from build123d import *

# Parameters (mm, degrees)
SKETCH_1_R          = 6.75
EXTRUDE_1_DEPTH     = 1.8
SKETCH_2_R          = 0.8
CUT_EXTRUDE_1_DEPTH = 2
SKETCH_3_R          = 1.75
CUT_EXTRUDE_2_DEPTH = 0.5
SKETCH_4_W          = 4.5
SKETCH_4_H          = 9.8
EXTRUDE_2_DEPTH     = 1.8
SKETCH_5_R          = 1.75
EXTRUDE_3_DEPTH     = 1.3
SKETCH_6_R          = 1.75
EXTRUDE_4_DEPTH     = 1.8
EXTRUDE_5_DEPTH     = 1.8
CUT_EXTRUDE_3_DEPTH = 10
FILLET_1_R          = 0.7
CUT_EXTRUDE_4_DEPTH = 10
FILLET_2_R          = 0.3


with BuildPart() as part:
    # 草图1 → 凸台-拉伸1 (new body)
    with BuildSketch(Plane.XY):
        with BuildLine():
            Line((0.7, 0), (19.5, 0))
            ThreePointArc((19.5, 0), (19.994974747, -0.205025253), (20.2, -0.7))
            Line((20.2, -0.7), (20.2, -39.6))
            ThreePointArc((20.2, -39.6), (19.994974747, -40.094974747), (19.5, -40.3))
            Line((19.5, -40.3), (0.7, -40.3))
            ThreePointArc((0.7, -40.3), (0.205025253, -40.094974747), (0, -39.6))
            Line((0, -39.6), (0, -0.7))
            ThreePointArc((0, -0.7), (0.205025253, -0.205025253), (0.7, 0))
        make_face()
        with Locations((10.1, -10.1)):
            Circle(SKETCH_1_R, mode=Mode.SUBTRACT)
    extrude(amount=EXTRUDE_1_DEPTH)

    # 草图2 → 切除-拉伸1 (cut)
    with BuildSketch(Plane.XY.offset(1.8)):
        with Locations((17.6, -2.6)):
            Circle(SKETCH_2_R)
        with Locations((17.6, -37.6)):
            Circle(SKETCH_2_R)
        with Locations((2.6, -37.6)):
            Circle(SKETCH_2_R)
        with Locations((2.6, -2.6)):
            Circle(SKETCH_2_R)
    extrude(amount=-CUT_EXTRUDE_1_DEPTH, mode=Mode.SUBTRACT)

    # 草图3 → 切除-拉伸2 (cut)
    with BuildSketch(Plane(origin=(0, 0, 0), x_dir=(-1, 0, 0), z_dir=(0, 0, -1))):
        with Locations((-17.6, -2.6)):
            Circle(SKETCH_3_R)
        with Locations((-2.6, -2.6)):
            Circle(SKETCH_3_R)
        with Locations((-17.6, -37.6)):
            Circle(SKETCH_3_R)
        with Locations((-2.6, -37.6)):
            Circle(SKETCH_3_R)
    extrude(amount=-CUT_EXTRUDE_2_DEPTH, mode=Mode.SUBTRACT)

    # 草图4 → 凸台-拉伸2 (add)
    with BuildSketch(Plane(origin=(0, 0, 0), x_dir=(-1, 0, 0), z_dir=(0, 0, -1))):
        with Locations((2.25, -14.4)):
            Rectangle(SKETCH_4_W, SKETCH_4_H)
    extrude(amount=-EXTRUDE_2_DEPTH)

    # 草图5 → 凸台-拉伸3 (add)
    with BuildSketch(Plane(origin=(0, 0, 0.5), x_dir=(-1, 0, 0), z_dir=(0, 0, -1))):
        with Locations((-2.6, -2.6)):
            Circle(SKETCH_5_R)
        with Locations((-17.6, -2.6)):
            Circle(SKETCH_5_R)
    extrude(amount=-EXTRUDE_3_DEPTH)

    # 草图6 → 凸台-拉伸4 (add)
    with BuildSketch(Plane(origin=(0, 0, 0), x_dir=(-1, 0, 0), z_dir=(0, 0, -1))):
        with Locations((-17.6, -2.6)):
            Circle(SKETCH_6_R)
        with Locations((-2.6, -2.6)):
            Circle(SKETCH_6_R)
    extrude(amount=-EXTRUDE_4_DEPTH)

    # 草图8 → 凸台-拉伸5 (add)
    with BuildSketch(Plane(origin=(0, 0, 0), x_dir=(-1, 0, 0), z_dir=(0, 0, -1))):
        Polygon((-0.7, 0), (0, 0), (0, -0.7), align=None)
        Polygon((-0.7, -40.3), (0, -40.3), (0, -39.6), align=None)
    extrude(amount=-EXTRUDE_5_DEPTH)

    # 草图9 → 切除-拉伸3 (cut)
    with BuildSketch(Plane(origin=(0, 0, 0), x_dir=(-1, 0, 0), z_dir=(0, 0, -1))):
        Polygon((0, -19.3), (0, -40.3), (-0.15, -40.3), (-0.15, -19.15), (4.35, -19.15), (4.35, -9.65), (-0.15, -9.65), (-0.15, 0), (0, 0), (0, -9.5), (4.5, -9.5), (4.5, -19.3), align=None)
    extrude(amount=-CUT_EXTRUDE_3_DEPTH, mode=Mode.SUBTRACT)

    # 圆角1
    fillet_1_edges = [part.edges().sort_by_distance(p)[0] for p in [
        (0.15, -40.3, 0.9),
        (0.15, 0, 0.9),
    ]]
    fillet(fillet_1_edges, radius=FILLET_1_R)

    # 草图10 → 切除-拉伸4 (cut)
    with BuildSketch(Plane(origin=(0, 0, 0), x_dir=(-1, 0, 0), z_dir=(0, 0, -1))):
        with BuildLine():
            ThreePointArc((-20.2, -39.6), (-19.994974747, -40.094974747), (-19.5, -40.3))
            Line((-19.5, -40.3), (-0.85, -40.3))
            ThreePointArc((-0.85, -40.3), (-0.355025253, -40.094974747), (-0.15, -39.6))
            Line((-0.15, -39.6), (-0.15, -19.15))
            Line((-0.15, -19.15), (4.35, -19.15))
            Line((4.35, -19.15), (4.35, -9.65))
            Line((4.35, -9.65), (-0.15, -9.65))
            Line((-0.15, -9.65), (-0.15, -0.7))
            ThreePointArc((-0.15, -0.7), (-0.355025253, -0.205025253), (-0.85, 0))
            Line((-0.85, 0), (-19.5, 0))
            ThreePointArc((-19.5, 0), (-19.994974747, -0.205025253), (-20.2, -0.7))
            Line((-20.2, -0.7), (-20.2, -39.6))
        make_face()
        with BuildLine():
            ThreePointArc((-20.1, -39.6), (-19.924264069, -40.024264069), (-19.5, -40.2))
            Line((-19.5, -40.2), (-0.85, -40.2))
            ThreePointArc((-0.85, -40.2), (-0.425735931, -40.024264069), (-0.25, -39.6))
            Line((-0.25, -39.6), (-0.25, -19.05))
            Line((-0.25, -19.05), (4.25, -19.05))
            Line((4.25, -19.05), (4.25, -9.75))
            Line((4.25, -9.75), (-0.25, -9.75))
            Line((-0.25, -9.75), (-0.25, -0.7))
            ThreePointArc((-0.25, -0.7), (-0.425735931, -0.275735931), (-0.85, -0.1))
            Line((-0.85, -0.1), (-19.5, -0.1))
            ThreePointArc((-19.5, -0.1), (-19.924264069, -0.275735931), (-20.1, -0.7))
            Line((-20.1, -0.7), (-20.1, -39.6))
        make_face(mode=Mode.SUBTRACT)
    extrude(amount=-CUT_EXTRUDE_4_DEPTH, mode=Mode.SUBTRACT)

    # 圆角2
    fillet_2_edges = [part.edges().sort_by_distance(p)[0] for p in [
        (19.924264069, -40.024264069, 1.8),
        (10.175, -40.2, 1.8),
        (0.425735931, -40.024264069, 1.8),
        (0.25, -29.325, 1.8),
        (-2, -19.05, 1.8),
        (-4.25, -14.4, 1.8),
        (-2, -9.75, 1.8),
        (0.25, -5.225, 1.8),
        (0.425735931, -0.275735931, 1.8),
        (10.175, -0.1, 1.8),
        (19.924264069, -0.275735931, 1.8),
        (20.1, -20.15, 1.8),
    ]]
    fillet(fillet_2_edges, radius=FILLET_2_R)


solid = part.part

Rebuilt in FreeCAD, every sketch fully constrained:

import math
import FreeCAD as App
import Part
import Sketcher
from FreeCAD import Vector


def edges_at(feature, points):
    """Names of the edges that pass closest to the given points."""
    edges = feature.Shape.Edges
    near = lambda p: min(range(len(edges)), key=lambda i: edges[i].distToShape(Part.Vertex(*p))[0])
    return sorted({f"Edge{near(p) + 1}" for p in points})


def add_polygon(sketch, points):
    """Adds a closed chain of lines whose ends are joined by coincident constraints."""
    first, n = sketch.GeometryCount, len(points)
    for a, b in zip(points, points[1:] + points[:1]):
        sketch.addGeometry(Part.LineSegment(App.Vector(*a, 0), App.Vector(*b, 0)), False)
    for i in range(n):
        sketch.addConstraint(Sketcher.Constraint("Coincident", first + i, 2, first + (i + 1) % n, 1))

doc = App.newDocument("Part")
body = doc.addObject("PartDesign::Body", "Body")

sketch1 = body.newObject("Sketcher::SketchObject", "Sketch")
sketch1.AttachmentSupport = (doc.getObject("XY_Plane"), [""])
sketch1.MapMode = "FlatFace"
sketch1.addGeometry([
    Part.LineSegment(Vector(19.5, 0, 0), Vector(0.7, 0, 0)),
    Part.ArcOfCircle(Part.Circle(Vector(0.7, -0.7, 0), Vector(0, 0, 1), 0.7), math.radians(90), math.radians(180)),
    Part.LineSegment(Vector(0, -0.7, 0), Vector(0, -39.6, 0)),
    Part.ArcOfCircle(Part.Circle(Vector(0.7, -39.6, 0), Vector(0, 0, 1), 0.7), math.radians(180), math.radians(270)),
    Part.LineSegment(Vector(0.7, -40.3, 0), Vector(19.5, -40.3, 0)),
    Part.ArcOfCircle(Part.Circle(Vector(19.5, -39.6, 0), Vector(0, 0, 1), 0.7), math.radians(-90), math.radians(0)),
    Part.LineSegment(Vector(20.2, -39.6, 0), Vector(20.2, -0.7, 0)),
    Part.ArcOfCircle(Part.Circle(Vector(19.5, -0.7, 0), Vector(0, 0, 1), 0.7), math.radians(0), math.radians(90)),
    Part.Circle(Vector(10.1, -10.1, 0), Vector(0, 0, 1), 6.8),
], False)
sketch1.addConstraint([
    Sketcher.Constraint("Tangent", 0, 2, 1, 1),
    Sketcher.Constraint("Tangent", 1, 2, 2, 1),
    Sketcher.Constraint("Tangent", 2, 2, 3, 1),
    Sketcher.Constraint("Tangent", 3, 2, 4, 1),
    Sketcher.Constraint("Tangent", 4, 2, 5, 1),
    Sketcher.Constraint("Tangent", 5, 2, 6, 1),
    Sketcher.Constraint("Tangent", 6, 2, 7, 1),
    Sketcher.Constraint("Tangent", 7, 2, 0, 1),
    Sketcher.Constraint("Horizontal", 0),
    Sketcher.Constraint("Vertical", 2),
    Sketcher.Constraint("Horizontal", 4),
    Sketcher.Constraint("Vertical", 6),
    Sketcher.Constraint("Equal", 1, 3),
    Sketcher.Constraint("Equal", 3, 5),
    Sketcher.Constraint("Equal", 5, 7),
    Sketcher.Constraint("PointOnObject", 0, 2, -1),
    Sketcher.Constraint("PointOnObject", 1, 2, -2),
    Sketcher.Constraint("Diameter", 8, 13.5),
    Sketcher.Constraint("Radius", 1, 0.7),
    Sketcher.Constraint("DistanceX", 0, 2, 0, 1, 18.8),
    Sketcher.Constraint("DistanceY", 2, 2, 2, 1, 38.9),
    Sketcher.Constraint("DistanceX", -1, 1, 8, 3, 10.1),
    Sketcher.Constraint("DistanceY", 8, 3, -1, 1, 10.1),
])
pad1 = body.newObject("PartDesign::Pad", "Pad")
pad1.Profile = sketch1
pad1.Length = 1.8

sketch2 = body.newObject("Sketcher::SketchObject", "Sketch001")
sketch2.AttachmentSupport = (doc.getObject("XY_Plane"), [""])
sketch2.MapMode = "FlatFace"
sketch2.AttachmentOffset = App.Placement(Vector(0, 0, 1.8), App.Rotation())
sketch2.addGeometry([
    Part.Circle(Vector(17.6, -2.6, 0), Vector(0, 0, 1), 0.8),
    Part.Circle(Vector(17.6, -37.6, 0), Vector(0, 0, 1), 0.8),
    Part.Circle(Vector(2.6, -37.6, 0), Vector(0, 0, 1), 0.8),
    Part.Circle(Vector(2.6, -2.6, 0), Vector(0, 0, 1), 0.8),
], False)
sketch2.addConstraint([
    Sketcher.Constraint("Equal", 0, 1),
    Sketcher.Constraint("Equal", 1, 2),
    Sketcher.Constraint("Equal", 2, 3),
    Sketcher.Constraint("Horizontal", 1, 3, 2, 3),
    Sketcher.Constraint("Horizontal", 0, 3, 3, 3),
    Sketcher.Constraint("Vertical", 0, 3, 1, 3),
    Sketcher.Constraint("Vertical", 2, 3, 3, 3),
    Sketcher.Constraint("Diameter", 0, 1.6),
    Sketcher.Constraint("DistanceY", 1, 3, 0, 3, 35.0),
    Sketcher.Constraint("DistanceX", 2, 3, 1, 3, 15.0),
    Sketcher.Constraint("DistanceX", -1, 1, 0, 3, 17.6),
    Sketcher.Constraint("DistanceY", 0, 3, -1, 1, 2.6),
])
pocket1 = body.newObject("PartDesign::Pocket", "Pocket")
pocket1.Profile = sketch2
pocket1.Length = 2

sketch3 = body.newObject("Sketcher::SketchObject", "Sketch002")
sketch3.AttachmentSupport = (doc.getObject("XY_Plane"), [""])
sketch3.MapMode = "FlatFace"
sketch3.addGeometry([
    Part.Circle(Vector(17.6, -2.6, 0), Vector(0, 0, 1), 1.8),
    Part.Circle(Vector(2.6, -2.6, 0), Vector(0, 0, 1), 1.8),
    Part.Circle(Vector(17.6, -37.6, 0), Vector(0, 0, 1), 1.8),
    Part.Circle(Vector(2.6, -37.6, 0), Vector(0, 0, 1), 1.8),
], False)
sketch3.addConstraint([
    Sketcher.Constraint("Equal", 0, 1),
    Sketcher.Constraint("Equal", 1, 2),
    Sketcher.Constraint("Equal", 2, 3),
    Sketcher.Constraint("Horizontal", 0, 3, 1, 3),
    Sketcher.Constraint("Horizontal", 2, 3, 3, 3),
    Sketcher.Constraint("Vertical", 0, 3, 2, 3),
    Sketcher.Constraint("Vertical", 1, 3, 3, 3),
    Sketcher.Constraint("Diameter", 0, 3.5),
    Sketcher.Constraint("DistanceX", 1, 3, 0, 3, 15.0),
    Sketcher.Constraint("DistanceY", 2, 3, 0, 3, 35.0),
    Sketcher.Constraint("DistanceX", -1, 1, 0, 3, 17.6),
    Sketcher.Constraint("DistanceY", 0, 3, -1, 1, 2.6),
])
pocket2 = body.newObject("PartDesign::Pocket", "Pocket001")
pocket2.Profile = sketch3
pocket2.Length = 0.5
pocket2.Reversed = True

sketch4 = body.newObject("Sketcher::SketchObject", "Sketch003")
sketch4.AttachmentSupport = (doc.getObject("XY_Plane"), [""])
sketch4.MapMode = "FlatFace"
add_polygon(sketch4, [(0, -9.5), (0, -19.3), (-4.5, -19.3), (-4.5, -9.5)])
sketch4.addConstraint([
    Sketcher.Constraint("Vertical", 0),
    Sketcher.Constraint("Horizontal", 1),
    Sketcher.Constraint("Vertical", 2),
    Sketcher.Constraint("Horizontal", 3),
    Sketcher.Constraint("PointOnObject", 0, 2, -2),
    Sketcher.Constraint("DistanceX", 1, 2, 1, 1, 4.5),
    Sketcher.Constraint("DistanceY", 0, 2, 0, 1, 9.8),
    Sketcher.Constraint("DistanceY", 0, 2, -1, 1, 19.3),
])
pad2 = body.newObject("PartDesign::Pad", "Pad001")
pad2.Profile = sketch4
pad2.Length = 1.8

sketch5 = body.newObject("Sketcher::SketchObject", "Sketch004")
sketch5.AttachmentSupport = (doc.getObject("XY_Plane"), [""])
sketch5.MapMode = "FlatFace"
sketch5.AttachmentOffset = App.Placement(Vector(0, 0, 0.5), App.Rotation())
sketch5.addGeometry([
    Part.Circle(Vector(2.6, -2.6, 0), Vector(0, 0, 1), 1.8),
    Part.Circle(Vector(17.6, -2.6, 0), Vector(0, 0, 1), 1.8),
], False)
sketch5.addConstraint([
    Sketcher.Constraint("Equal", 0, 1),
    Sketcher.Constraint("Horizontal", 0, 3, 1, 3),
    Sketcher.Constraint("Diameter", 0, 3.5),
    Sketcher.Constraint("DistanceX", 0, 3, 1, 3, 15.0),
    Sketcher.Constraint("DistanceX", -1, 1, 0, 3, 2.6),
    Sketcher.Constraint("DistanceY", 0, 3, -1, 1, 2.6),
])
pad3 = body.newObject("PartDesign::Pad", "Pad002")
pad3.Profile = sketch5
pad3.Length = 1.3

sketch6 = body.newObject("Sketcher::SketchObject", "Sketch005")
sketch6.AttachmentSupport = (doc.getObject("XY_Plane"), [""])
sketch6.MapMode = "FlatFace"
sketch6.addGeometry([
    Part.Circle(Vector(17.6, -2.6, 0), Vector(0, 0, 1), 1.8),
    Part.Circle(Vector(2.6, -2.6, 0), Vector(0, 0, 1), 1.8),
], False)
sketch6.addConstraint([
    Sketcher.Constraint("Equal", 0, 1),
    Sketcher.Constraint("Horizontal", 0, 3, 1, 3),
    Sketcher.Constraint("Diameter", 0, 3.5),
    Sketcher.Constraint("DistanceX", 1, 3, 0, 3, 15.0),
    Sketcher.Constraint("DistanceX", -1, 1, 0, 3, 17.6),
    Sketcher.Constraint("DistanceY", 0, 3, -1, 1, 2.6),
])
pad4 = body.newObject("PartDesign::Pad", "Pad003")
pad4.Profile = sketch6
pad4.Length = 1.8

sketch7 = body.newObject("Sketcher::SketchObject", "Sketch006")
sketch7.AttachmentSupport = (doc.getObject("XY_Plane"), [""])
sketch7.MapMode = "FlatFace"
add_polygon(sketch7, [(0, 0), (0.7, 0), (0, -0.7)])
add_polygon(sketch7, [(0.7, -40.3), (0, -40.3), (0, -39.6)])
sketch7.addConstraint([
    Sketcher.Constraint("Horizontal", 0),
    Sketcher.Constraint("Vertical", 2),
    Sketcher.Constraint("Horizontal", 3),
    Sketcher.Constraint("Vertical", 4),
    Sketcher.Constraint("Coincident", 2, 2, -1, 1),
    Sketcher.Constraint("PointOnObject", 3, 2, -2),
    Sketcher.Constraint("Perpendicular", 1, 5),
    Sketcher.Constraint("Vertical", 0, 2, 5, 2),
    Sketcher.Constraint("Equal", 3, 2),
    Sketcher.Constraint("DistanceX", 0, 1, 0, 2, 0.7),
    Sketcher.Constraint("DistanceY", 3, 2, -1, 1, 40.3),
])
pad5 = body.newObject("PartDesign::Pad", "Pad004")
pad5.Profile = sketch7
pad5.Length = 1.8

sketch8 = body.newObject("Sketcher::SketchObject", "Sketch007")
sketch8.AttachmentSupport = (doc.getObject("XY_Plane"), [""])
sketch8.MapMode = "FlatFace"
add_polygon(sketch8, [(0, -40.3), (0, -19.3), (-4.5, -19.3), (-4.5, -9.5), (0, -9.5), (0, 0), (0.15, 0), (0.15, -9.65), (-4.35, -9.65), (-4.35, -19.15), (0.15, -19.15), (0.15, -40.3)])
sketch8.addConstraint([
    Sketcher.Constraint("Vertical", 0),
    Sketcher.Constraint("Horizontal", 1),
    Sketcher.Constraint("Vertical", 2),
    Sketcher.Constraint("Horizontal", 3),
    Sketcher.Constraint("Vertical", 4),
    Sketcher.Constraint("Horizontal", 5),
    Sketcher.Constraint("Vertical", 6),
    Sketcher.Constraint("Horizontal", 7),
    Sketcher.Constraint("Vertical", 8),
    Sketcher.Constraint("Horizontal", 9),
    Sketcher.Constraint("Vertical", 10),
    Sketcher.Constraint("Horizontal", 11),
    Sketcher.Constraint("Coincident", 4, 2, -1, 1),
    Sketcher.Constraint("PointOnObject", 0, 2, -2),
    Sketcher.Constraint("Vertical", 6, 2, 9, 2),
    Sketcher.Constraint("Equal", 3, 7),
    Sketcher.Constraint("Equal", 4, 8),
    Sketcher.Constraint("DistanceY", 0, 1, 0, 2, 21.0),
    Sketcher.Constraint("DistanceX", 1, 2, 1, 1, 4.5),
    Sketcher.Constraint("DistanceY", 2, 1, 2, 2, 9.8),
    Sketcher.Constraint("DistanceY", 4, 1, 4, 2, 9.5),
    Sketcher.Constraint("DistanceX", 5, 1, 5, 2, 0.15),
    Sketcher.Constraint("DistanceY", 6, 2, 6, 1, 9.65),
])
pocket3 = body.newObject("PartDesign::Pocket", "Pocket002")
pocket3.Profile = sketch8
pocket3.Length = 10
pocket3.Reversed = True
doc.recompute()

fillet = body.newObject("PartDesign::Fillet", "Fillet")
fillet.Base = (pocket3, edges_at(pocket3, [(0.15, -40.3, 0.9), (0.15, 0, 0.9)]))
fillet.Radius = 0.7

sketch9 = body.newObject("Sketcher::SketchObject", "Sketch008")
sketch9.AttachmentSupport = (doc.getObject("XY_Plane"), [""])
sketch9.MapMode = "FlatFace"
sketch9.addGeometry([
    Part.ArcOfCircle(Part.Circle(Vector(19.5, -39.6, 0), Vector(0, 0, 1), 0.7), math.radians(-90), math.radians(0)),
    Part.LineSegment(Vector(19.5, -40.3, 0), Vector(0.8, -40.3, 0)),
    Part.ArcOfCircle(Part.Circle(Vector(0.8, -39.6, 0), Vector(0, 0, 1), 0.7), math.radians(180), math.radians(270)),
    Part.LineSegment(Vector(0.1, -39.6, 0), Vector(0.1, -19.1, 0)),
    Part.LineSegment(Vector(0.1, -19.1, 0), Vector(-4.3, -19.1, 0)),
    Part.LineSegment(Vector(-4.3, -19.1, 0), Vector(-4.3, -9.7, 0)),
    Part.LineSegment(Vector(-4.3, -9.7, 0), Vector(0.1, -9.7, 0)),
    Part.LineSegment(Vector(0.1, -9.7, 0), Vector(0.1, -0.7, 0)),
    Part.ArcOfCircle(Part.Circle(Vector(0.8, -0.7, 0), Vector(0, 0, 1), 0.7), math.radians(90), math.radians(180)),
    Part.LineSegment(Vector(0.8, 0, 0), Vector(19.5, 0, 0)),
    Part.ArcOfCircle(Part.Circle(Vector(19.5, -0.7, 0), Vector(0, 0, 1), 0.7), math.radians(0), math.radians(90)),
    Part.LineSegment(Vector(20.2, -0.7, 0), Vector(20.2, -39.6, 0)),
    Part.ArcOfCircle(Part.Circle(Vector(19.5, -39.6, 0), Vector(0, 0, 1), 0.6), math.radians(-90), math.radians(0)),
    Part.LineSegment(Vector(20.1, -39.6, 0), Vector(20.1, -0.7, 0)),
    Part.ArcOfCircle(Part.Circle(Vector(19.5, -0.7, 0), Vector(0, 0, 1), 0.6), math.radians(0), math.radians(90)),
    Part.LineSegment(Vector(19.5, -0.1, 0), Vector(0.8, -0.1, 0)),
    Part.ArcOfCircle(Part.Circle(Vector(0.8, -0.7, 0), Vector(0, 0, 1), 0.6), math.radians(90), math.radians(180)),
    Part.LineSegment(Vector(0.2, -0.7, 0), Vector(0.2, -9.8, 0)),
    Part.LineSegment(Vector(0.2, -9.8, 0), Vector(-4.2, -9.8, 0)),
    Part.LineSegment(Vector(-4.2, -9.8, 0), Vector(-4.2, -19.1, 0)),
    Part.LineSegment(Vector(-4.2, -19.1, 0), Vector(0.2, -19.1, 0)),
    Part.LineSegment(Vector(0.2, -19.1, 0), Vector(0.2, -39.6, 0)),
    Part.ArcOfCircle(Part.Circle(Vector(0.8, -39.6, 0), Vector(0, 0, 1), 0.6), math.radians(180), math.radians(270)),
    Part.LineSegment(Vector(0.8, -40.2, 0), Vector(19.5, -40.2, 0)),
], False)
sketch9.addConstraint([
    Sketcher.Constraint("Tangent", 0, 1, 1, 1),
    Sketcher.Constraint("Tangent", 1, 2, 2, 2),
    Sketcher.Constraint("Tangent", 2, 1, 3, 1),
    Sketcher.Constraint("Coincident", 3, 2, 4, 1),
    Sketcher.Constraint("Coincident", 4, 2, 5, 1),
    Sketcher.Constraint("Coincident", 5, 2, 6, 1),
    Sketcher.Constraint("Coincident", 6, 2, 7, 1),
    Sketcher.Constraint("Tangent", 7, 2, 8, 2),
    Sketcher.Constraint("Tangent", 8, 1, 9, 1),
    Sketcher.Constraint("Tangent", 9, 2, 10, 2),
    Sketcher.Constraint("Tangent", 10, 1, 11, 1),
    Sketcher.Constraint("Tangent", 11, 2, 0, 2),
    Sketcher.Constraint("Tangent", 12, 2, 13, 1),
    Sketcher.Constraint("Tangent", 13, 2, 14, 1),
    Sketcher.Constraint("Tangent", 14, 2, 15, 1),
    Sketcher.Constraint("Tangent", 15, 2, 16, 1),
    Sketcher.Constraint("Tangent", 16, 2, 17, 1),
    Sketcher.Constraint("Coincident", 17, 2, 18, 1),
    Sketcher.Constraint("Coincident", 18, 2, 19, 1),
    Sketcher.Constraint("Coincident", 19, 2, 20, 1),
    Sketcher.Constraint("Coincident", 20, 2, 21, 1),
    Sketcher.Constraint("Tangent", 21, 2, 22, 1),
    Sketcher.Constraint("Tangent", 22, 2, 23, 1),
    Sketcher.Constraint("Tangent", 23, 2, 12, 1),
    Sketcher.Constraint("Horizontal", 1),
    Sketcher.Constraint("Vertical", 3),
    Sketcher.Constraint("Horizontal", 4),
    Sketcher.Constraint("Vertical", 5),
    Sketcher.Constraint("Horizontal", 6),
    Sketcher.Constraint("Vertical", 7),
    Sketcher.Constraint("Horizontal", 9),
    Sketcher.Constraint("Vertical", 11),
    Sketcher.Constraint("Vertical", 13),
    Sketcher.Constraint("Horizontal", 15),
    Sketcher.Constraint("Vertical", 17),
    Sketcher.Constraint("Horizontal", 18),
    Sketcher.Constraint("Vertical", 19),
    Sketcher.Constraint("Horizontal", 20),
    Sketcher.Constraint("Vertical", 21),
    Sketcher.Constraint("Horizontal", 23),
    Sketcher.Constraint("Coincident", 12, 3, 0, 3),
    Sketcher.Constraint("Coincident", 14, 3, 10, 3),
    Sketcher.Constraint("Coincident", 16, 3, 8, 3),
    Sketcher.Constraint("Coincident", 22, 3, 2, 3),
    Sketcher.Constraint("Equal", 0, 2),
    Sketcher.Constraint("Equal", 2, 8),
    Sketcher.Constraint("Equal", 8, 10),
    Sketcher.Constraint("PointOnObject", 8, 1, -1),
    Sketcher.Constraint("Vertical", 2, 3, 8, 3),
    Sketcher.Constraint("Equal", 6, 18),
    Sketcher.Constraint("Radius", 0, 0.7),
    Sketcher.Constraint("Radius", 12, 0.6),
    Sketcher.Constraint("DistanceX", 4, 2, 4, 1, 4.5),
    Sketcher.Constraint("DistanceY", 5, 1, 5, 2, 9.5),
    Sketcher.Constraint("DistanceY", 11, 2, 11, 1, 38.9),
    Sketcher.Constraint("DistanceY", 19, 2, 19, 1, 9.3),
    Sketcher.Constraint("DistanceX", 1, 2, 1, 1, 18.65),
    Sketcher.Constraint("DistanceY", 3, 1, 3, 2, 20.45),
    Sketcher.Constraint("DistanceY", 17, 2, 17, 1, 9.05),
    Sketcher.Constraint("DistanceX", -1, 1, 0, 3, 19.5),
])
pocket4 = body.newObject("PartDesign::Pocket", "Pocket003")
pocket4.Profile = sketch9
pocket4.Length = 10
pocket4.Reversed = True
doc.recompute()

fillet2 = body.newObject("PartDesign::Fillet", "Fillet001")
fillet2.Base = (pocket4, edges_at(pocket4, [
    (19.924, -40.024, 1.8),
    (10.175, -40.2, 1.8),
    (0.426, -40.024, 1.8),
    (0.25, -29.325, 1.8),
    (-2, -19.05, 1.8),
    (-4.25, -14.4, 1.8),
    (-2, -9.75, 1.8),
    (0.25, -5.225, 1.8),
    (0.426, -0.276, 1.8),
    (10.175, -0.1, 1.8),
    (19.924, -0.276, 1.8),
    (20.1, -20.15, 1.8),
]))
fillet2.Radius = 0.3

doc.recompute()
